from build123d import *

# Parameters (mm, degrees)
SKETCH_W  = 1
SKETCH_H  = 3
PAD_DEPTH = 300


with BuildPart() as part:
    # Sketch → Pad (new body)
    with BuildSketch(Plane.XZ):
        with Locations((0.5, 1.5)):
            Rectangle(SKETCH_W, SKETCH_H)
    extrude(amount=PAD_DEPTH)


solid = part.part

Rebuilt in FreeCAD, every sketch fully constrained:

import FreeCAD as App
import Part
import Sketcher
from FreeCAD import Vector

doc = App.newDocument("Part")
body = doc.addObject("PartDesign::Body", "Body")

sketch1 = doc.addObject("Sketcher::SketchObject", "Sketch")
body.addObject(sketch1)
sketch1.AttachmentSupport = (doc.XZ_Plane, [""])
sketch1.MapMode = "FlatFace"
sketch1.addGeometry(Part.LineSegment(Vector(0, 3, 0), Vector(0, 0, 0)), False)
sketch1.addGeometry(Part.LineSegment(Vector(0, 0, 0), Vector(1, 0, 0)), False)
sketch1.addGeometry(Part.LineSegment(Vector(1, 0, 0), Vector(1, 3, 0)), False)
sketch1.addGeometry(Part.LineSegment(Vector(1, 3, 0), Vector(0, 3, 0)), False)
sketch1.addConstraint(Sketcher.Constraint("Coincident", 0, 2, 1, 1))
sketch1.addConstraint(Sketcher.Constraint("Coincident", 1, 2, 2, 1))
sketch1.addConstraint(Sketcher.Constraint("Coincident", 2, 2, 3, 1))
sketch1.addConstraint(Sketcher.Constraint("Coincident", 3, 2, 0, 1))
sketch1.addConstraint(Sketcher.Constraint("Vertical", 0))
sketch1.addConstraint(Sketcher.Constraint("Horizontal", 1))
sketch1.addConstraint(Sketcher.Constraint("Vertical", 2))
sketch1.addConstraint(Sketcher.Constraint("Horizontal", 3))
sketch1.addConstraint(Sketcher.Constraint("Coincident", 0, 2, -1, 1))
sketch1.addConstraint(Sketcher.Constraint("DistanceX", 1, 1, 1, 2, 1.0))
sketch1.addConstraint(Sketcher.Constraint("DistanceY", 0, 2, 0, 1, 3.0))
pad1 = doc.addObject("PartDesign::Pad", "Pad")
body.addObject(pad1)
pad1.Profile = sketch1
pad1.Length = 300

doc.recompute()
